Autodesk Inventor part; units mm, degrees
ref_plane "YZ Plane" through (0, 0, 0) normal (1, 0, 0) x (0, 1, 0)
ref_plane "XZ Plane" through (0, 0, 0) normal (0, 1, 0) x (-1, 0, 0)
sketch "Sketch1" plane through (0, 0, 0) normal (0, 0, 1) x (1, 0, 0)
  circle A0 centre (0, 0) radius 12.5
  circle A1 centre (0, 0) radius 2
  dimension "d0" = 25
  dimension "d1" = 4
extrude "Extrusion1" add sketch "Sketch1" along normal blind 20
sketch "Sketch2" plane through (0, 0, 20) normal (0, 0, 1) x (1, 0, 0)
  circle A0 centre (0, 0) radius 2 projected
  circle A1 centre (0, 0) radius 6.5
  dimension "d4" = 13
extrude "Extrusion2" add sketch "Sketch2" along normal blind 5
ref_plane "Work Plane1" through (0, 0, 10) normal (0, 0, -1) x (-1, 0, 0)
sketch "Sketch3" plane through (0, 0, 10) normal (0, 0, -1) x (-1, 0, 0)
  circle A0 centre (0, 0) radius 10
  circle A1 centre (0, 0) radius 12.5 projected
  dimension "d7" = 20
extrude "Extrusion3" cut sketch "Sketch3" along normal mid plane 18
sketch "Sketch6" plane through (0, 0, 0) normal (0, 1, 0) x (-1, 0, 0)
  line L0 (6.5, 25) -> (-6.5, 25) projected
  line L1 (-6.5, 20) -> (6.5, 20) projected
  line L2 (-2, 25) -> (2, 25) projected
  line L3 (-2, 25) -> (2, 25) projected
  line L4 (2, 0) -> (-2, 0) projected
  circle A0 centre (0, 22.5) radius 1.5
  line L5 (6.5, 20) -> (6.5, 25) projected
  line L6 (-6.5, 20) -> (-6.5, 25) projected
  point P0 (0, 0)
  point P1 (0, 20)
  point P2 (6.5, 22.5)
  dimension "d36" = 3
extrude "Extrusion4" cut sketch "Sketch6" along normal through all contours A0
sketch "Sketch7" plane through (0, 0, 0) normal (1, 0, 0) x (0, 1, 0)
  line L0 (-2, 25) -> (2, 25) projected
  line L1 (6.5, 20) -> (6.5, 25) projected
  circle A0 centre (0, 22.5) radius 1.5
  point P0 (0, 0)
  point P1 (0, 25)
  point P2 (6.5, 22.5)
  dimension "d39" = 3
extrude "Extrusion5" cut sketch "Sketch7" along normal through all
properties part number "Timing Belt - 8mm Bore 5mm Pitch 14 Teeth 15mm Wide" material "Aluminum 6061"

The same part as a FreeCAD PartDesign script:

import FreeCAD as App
import Part
import Sketcher
Q = App.Units.Quantity

doc = App.newDocument("Part")
params = doc.addObject("Spreadsheet::Sheet", "Params")
for row, (alias, value) in enumerate([
    ("sketch1_diameter", "25 mm"),
    ("sketch1_diameter2", "4 mm"),
    ("pad1_length", "20 mm"),
    ("sketch2_diameter", "13 mm"),
    ("sketch2_diameter2", "4 mm"),
    ("pad2_length", "5 mm"),
    ("sketch3_diameter", "20 mm"),
    ("sketch3_diameter2", "25 mm"),
    ("pocket1_length", "18 mm"),
    ("sketch4_diameter", "3 mm"),
    ("sketch5_diameter", "3 mm"),
], start=1):
    params.set(f"A{row}", alias)
    params.set(f"B{row}", "=" + value)
    params.setAlias(f"B{row}", alias)

body = doc.addObject("PartDesign::Body", "Body")

# Sketch on XY plane
sketch1 = body.newObject("Sketcher::SketchObject", "Sketch")
sketch1.AttachmentSupport = (doc.getObject("XY_Plane"), [""])
sketch1.MapMode = "FlatFace"
sketch1.addGeometry([
    Part.Circle(App.Vector(0, 0, 0), App.Vector(0, 0, 1), 12.5),
    Part.Circle(App.Vector(0, 0, 0), App.Vector(0, 0, 1), 2),
], False)
sketch1.addConstraint([
    Sketcher.Constraint("Coincident", 0, 3, -1, 1),
    Sketcher.Constraint("Coincident", 1, 3, -1, 1),
    Sketcher.Constraint("Diameter", 0, Q("25 mm")),
    Sketcher.Constraint("Diameter", 1, Q("4 mm")),
])
sketch1.setExpression("Constraints[2]", "Params.sketch1_diameter")
sketch1.setExpression("Constraints[3]", "Params.sketch1_diameter2")
pad1 = body.newObject("PartDesign::Pad", "Pad")
pad1.Profile = sketch1
pad1.setExpression("Length", "Params.pad1_length")

# Sketch on XY plane
sketch2 = body.newObject("Sketcher::SketchObject", "Sketch001")
sketch2.AttachmentSupport = (doc.getObject("XY_Plane"), [""])
sketch2.MapMode = "FlatFace"
sketch2.AttachmentOffset = App.Placement(App.Vector(0, 0, 20), App.Rotation())
sketch2.addGeometry([
    Part.Circle(App.Vector(0, 0, 0), App.Vector(0, 0, 1), 6.5),
    Part.Circle(App.Vector(0, 0, 0), App.Vector(0, 0, 1), 2),
], False)
sketch2.addConstraint([
    Sketcher.Constraint("Coincident", 0, 3, -1, 1),
    Sketcher.Constraint("Coincident", 1, 3, -1, 1),
    Sketcher.Constraint("Diameter", 0, Q("13 mm")),
    Sketcher.Constraint("Diameter", 1, Q("4 mm")),
])
sketch2.setExpression("Constraints[2]", "Params.sketch2_diameter")
sketch2.setExpression("Constraints[3]", "Params.sketch2_diameter2")
pad2 = body.newObject("PartDesign::Pad", "Pad001")
pad2.Profile = sketch2
pad2.setExpression("Length", "Params.pad2_length")

# Sketch on XY plane
sketch3 = body.newObject("Sketcher::SketchObject", "Sketch002")
sketch3.AttachmentSupport = (doc.getObject("XY_Plane"), [""])
sketch3.MapMode = "FlatFace"
sketch3.AttachmentOffset = App.Placement(App.Vector(0, 0, 10), App.Rotation())
sketch3.addGeometry([
    Part.Circle(App.Vector(0, 0, 0), App.Vector(0, 0, 1), 12.5),
    Part.Circle(App.Vector(0, 0, 0), App.Vector(0, 0, 1), 10),
], False)
sketch3.addConstraint([
    Sketcher.Constraint("Coincident", 0, 3, -1, 1),
    Sketcher.Constraint("Coincident", 1, 3, -1, 1),
    Sketcher.Constraint("Diameter", 1, Q("20 mm")),
    Sketcher.Constraint("Diameter", 0, Q("25 mm")),
])
sketch3.setExpression("Constraints[2]", "Params.sketch3_diameter")
sketch3.setExpression("Constraints[3]", "Params.sketch3_diameter2")
pocket1 = body.newObject("PartDesign::Pocket", "Pocket")
pocket1.Profile = sketch3
pocket1.setExpression("Length", "Params.pocket1_length")
pocket1.Midplane = True

# Sketch on XZ plane
sketch4 = body.newObject("Sketcher::SketchObject", "Sketch003")
sketch4.AttachmentSupport = (doc.getObject("XZ_Plane"), [""])
sketch4.MapMode = "FlatFace"
sketch4.addGeometry(Part.Circle(App.Vector(0, 22.5, 0), App.Vector(0, 0, 1), 1.5), False)
sketch4.addConstraint([
    Sketcher.Constraint("PointOnObject", 0, 3, -2),
    Sketcher.Constraint("Diameter", 0, Q("3 mm")),
    Sketcher.Constraint("DistanceY", -1, 1, 0, 3, Q("22.5 mm")),
])
sketch4.setExpression("Constraints[1]", "Params.sketch4_diameter")
pocket2 = body.newObject("PartDesign::Pocket", "Pocket001")
pocket2.Profile = sketch4
pocket2.Type = "ThroughAll"

# Sketch on YZ plane
sketch5 = body.newObject("Sketcher::SketchObject", "Sketch004")
sketch5.AttachmentSupport = (doc.getObject("YZ_Plane"), [""])
sketch5.MapMode = "FlatFace"
sketch5.addGeometry(Part.Circle(App.Vector(0, 22.5, 0), App.Vector(0, 0, 1), 1.5), False)
sketch5.addConstraint([
    Sketcher.Constraint("PointOnObject", 0, 3, -2),
    Sketcher.Constraint("Diameter", 0, Q("3 mm")),
    Sketcher.Constraint("DistanceY", -1, 1, 0, 3, Q("22.5 mm")),
])
sketch5.setExpression("Constraints[1]", "Params.sketch5_diameter")
pocket3 = body.newObject("PartDesign::Pocket", "Pocket002")
pocket3.Profile = sketch5
pocket3.Type = "ThroughAll"
pocket3.Reversed = True

doc.recompute()
